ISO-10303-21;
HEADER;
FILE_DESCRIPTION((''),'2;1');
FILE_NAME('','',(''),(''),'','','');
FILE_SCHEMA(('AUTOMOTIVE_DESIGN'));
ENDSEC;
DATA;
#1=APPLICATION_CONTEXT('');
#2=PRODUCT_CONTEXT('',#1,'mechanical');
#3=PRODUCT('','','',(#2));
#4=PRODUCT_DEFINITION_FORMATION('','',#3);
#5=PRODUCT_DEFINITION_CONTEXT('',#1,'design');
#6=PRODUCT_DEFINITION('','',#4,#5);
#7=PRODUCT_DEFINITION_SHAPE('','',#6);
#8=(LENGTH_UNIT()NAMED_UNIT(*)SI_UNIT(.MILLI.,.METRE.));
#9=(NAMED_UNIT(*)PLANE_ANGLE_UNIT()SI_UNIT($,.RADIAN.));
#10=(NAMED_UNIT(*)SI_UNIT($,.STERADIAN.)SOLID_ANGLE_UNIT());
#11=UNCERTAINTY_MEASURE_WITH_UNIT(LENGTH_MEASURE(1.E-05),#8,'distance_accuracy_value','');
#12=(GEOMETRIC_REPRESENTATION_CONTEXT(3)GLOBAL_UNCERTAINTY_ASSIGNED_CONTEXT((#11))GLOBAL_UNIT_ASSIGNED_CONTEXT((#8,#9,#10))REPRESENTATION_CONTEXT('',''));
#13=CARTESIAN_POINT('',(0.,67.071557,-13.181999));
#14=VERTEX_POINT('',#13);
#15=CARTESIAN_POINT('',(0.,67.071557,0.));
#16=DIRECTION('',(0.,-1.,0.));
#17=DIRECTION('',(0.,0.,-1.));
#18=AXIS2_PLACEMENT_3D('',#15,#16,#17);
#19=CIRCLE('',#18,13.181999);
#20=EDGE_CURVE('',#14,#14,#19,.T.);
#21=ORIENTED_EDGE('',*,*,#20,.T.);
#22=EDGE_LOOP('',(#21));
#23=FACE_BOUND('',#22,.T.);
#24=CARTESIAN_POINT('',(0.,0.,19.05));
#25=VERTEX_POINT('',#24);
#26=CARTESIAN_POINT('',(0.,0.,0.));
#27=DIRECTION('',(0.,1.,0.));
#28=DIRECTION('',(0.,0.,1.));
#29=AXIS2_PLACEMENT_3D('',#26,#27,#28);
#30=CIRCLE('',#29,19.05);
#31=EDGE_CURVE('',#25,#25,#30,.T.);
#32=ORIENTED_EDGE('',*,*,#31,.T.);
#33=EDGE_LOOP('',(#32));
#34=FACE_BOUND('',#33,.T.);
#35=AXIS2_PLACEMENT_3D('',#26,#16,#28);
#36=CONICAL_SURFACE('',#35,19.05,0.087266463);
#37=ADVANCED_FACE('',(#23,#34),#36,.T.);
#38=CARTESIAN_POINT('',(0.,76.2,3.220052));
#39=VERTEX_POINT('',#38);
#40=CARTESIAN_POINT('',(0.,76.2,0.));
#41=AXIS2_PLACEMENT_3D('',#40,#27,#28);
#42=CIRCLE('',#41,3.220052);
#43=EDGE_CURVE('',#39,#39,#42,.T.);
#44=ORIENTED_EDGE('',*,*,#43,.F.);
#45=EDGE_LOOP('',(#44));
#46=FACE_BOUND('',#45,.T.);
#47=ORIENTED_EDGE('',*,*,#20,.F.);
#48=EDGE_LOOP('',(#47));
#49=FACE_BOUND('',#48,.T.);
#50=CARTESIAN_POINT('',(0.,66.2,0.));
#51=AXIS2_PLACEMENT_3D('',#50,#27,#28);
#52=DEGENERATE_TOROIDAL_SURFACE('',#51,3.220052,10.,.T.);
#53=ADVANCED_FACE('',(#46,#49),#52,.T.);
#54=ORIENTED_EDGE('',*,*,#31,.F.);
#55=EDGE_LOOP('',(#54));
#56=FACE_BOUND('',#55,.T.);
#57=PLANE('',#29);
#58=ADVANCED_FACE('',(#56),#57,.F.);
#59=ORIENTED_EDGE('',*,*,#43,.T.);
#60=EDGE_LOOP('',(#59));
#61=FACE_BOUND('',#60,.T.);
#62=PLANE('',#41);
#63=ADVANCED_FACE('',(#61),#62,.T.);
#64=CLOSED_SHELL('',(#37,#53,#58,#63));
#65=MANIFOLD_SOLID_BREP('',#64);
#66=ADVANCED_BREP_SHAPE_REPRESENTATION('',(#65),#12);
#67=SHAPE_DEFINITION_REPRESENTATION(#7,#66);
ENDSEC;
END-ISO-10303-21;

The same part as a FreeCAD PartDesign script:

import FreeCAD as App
import Part
import Sketcher
Q = App.Units.Quantity


def edges_at(feature, points):
    """Names of the edges that pass closest to the given points."""
    edges = feature.Shape.Edges
    near = lambda p: min(range(len(edges)), key=lambda i: edges[i].distToShape(Part.Vertex(*p))[0])
    return sorted({f"Edge{near(p) + 1}" for p in points})

doc = App.newDocument("Part")
body = doc.addObject("PartDesign::Body", "Body")

sketch1 = body.newObject("Sketcher::SketchObject", "Sketch")
sketch1.AttachmentSupport = (doc.getObject("XZ_Plane"), [""])
sketch1.MapMode = "FlatFace"
sketch1.addGeometry(Part.Circle(App.Vector(0, 0, 0), App.Vector(0, 0, 1), 19), False)
sketch1.addConstraint([
    Sketcher.Constraint("Coincident", 0, 3, -1, 1),
    Sketcher.Constraint("Diameter", 0, Q("1.5 in")),
])
pad1 = body.newObject("PartDesign::Pad", "Pad")
pad1.Profile = sketch1
pad1.Length = Q("3 in")
pad1.Reversed = True
pad1.TaperAngle = -5
doc.recompute()

fillet = body.newObject("PartDesign::Fillet", "Fillet")
fillet.Base = (pad1, edges_at(pad1, [(-12.383, 76.2, 0)]))
fillet.Radius = 10

doc.recompute()
